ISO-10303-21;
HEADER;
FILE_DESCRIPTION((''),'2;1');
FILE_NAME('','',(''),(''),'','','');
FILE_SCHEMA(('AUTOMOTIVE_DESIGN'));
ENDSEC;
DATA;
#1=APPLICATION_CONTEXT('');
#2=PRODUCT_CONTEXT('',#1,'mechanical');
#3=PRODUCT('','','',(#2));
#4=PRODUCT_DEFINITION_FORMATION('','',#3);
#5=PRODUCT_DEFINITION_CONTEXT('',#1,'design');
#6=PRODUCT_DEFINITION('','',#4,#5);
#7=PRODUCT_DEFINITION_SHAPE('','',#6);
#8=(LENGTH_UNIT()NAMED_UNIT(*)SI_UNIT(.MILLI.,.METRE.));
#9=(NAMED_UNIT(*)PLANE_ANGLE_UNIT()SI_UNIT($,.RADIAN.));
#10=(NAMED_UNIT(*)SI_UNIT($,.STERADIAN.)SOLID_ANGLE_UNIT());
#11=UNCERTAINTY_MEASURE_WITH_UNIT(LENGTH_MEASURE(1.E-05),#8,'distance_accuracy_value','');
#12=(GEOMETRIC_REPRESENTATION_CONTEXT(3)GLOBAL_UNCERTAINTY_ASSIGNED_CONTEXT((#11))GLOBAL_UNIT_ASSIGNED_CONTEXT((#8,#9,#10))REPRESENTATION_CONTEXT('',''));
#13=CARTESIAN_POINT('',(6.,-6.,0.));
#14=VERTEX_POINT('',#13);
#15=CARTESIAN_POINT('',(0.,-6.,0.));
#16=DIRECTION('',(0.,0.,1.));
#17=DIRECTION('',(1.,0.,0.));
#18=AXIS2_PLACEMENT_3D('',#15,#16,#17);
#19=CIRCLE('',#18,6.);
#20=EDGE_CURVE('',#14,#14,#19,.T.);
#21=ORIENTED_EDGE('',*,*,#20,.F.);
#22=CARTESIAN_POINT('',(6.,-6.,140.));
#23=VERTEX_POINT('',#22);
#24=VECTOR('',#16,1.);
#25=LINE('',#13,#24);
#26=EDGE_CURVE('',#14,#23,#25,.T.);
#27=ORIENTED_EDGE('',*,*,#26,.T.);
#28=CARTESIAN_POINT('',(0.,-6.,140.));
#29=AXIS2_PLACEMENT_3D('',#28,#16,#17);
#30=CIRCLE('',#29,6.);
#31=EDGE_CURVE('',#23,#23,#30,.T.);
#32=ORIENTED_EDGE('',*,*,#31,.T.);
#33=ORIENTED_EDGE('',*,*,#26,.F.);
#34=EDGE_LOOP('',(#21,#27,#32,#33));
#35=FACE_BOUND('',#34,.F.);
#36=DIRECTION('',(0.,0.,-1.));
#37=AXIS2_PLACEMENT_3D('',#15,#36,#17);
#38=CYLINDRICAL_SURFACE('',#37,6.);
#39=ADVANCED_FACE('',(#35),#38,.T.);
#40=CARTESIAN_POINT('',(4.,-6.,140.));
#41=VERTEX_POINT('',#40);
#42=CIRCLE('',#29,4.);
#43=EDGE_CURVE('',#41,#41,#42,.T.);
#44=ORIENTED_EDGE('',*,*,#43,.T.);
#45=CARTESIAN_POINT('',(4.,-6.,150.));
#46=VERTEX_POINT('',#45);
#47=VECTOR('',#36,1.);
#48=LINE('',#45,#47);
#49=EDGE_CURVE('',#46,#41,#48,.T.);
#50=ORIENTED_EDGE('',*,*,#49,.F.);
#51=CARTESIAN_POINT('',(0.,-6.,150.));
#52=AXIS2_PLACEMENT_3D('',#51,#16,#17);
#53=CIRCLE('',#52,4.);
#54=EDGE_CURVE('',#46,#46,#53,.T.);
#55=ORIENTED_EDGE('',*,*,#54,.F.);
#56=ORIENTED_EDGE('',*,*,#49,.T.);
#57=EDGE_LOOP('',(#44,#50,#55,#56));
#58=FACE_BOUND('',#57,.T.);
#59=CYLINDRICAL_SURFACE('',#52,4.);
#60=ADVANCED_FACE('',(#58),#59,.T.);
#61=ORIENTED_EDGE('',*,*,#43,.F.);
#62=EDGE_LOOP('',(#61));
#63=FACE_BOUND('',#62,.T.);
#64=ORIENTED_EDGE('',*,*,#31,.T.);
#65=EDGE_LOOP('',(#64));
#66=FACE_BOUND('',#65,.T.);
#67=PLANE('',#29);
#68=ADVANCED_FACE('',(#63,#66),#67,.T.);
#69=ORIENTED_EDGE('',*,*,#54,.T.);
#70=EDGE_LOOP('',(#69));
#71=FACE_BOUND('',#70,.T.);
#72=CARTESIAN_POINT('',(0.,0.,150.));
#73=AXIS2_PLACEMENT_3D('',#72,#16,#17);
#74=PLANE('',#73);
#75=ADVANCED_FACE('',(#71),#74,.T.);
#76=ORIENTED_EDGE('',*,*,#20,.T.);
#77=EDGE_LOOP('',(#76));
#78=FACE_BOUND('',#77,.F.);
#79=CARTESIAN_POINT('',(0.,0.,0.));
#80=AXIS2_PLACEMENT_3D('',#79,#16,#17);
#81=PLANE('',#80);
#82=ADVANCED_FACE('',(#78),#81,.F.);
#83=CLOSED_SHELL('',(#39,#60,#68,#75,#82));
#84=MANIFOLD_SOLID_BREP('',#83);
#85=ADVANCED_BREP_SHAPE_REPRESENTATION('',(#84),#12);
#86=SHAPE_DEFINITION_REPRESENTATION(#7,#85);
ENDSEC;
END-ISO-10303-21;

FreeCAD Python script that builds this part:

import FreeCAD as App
import Part
import Sketcher

V = App.Vector
Q = App.Units.Quantity

doc = App.newDocument("Part")
body = doc.addObject("PartDesign::Body", "Body")

sketch1 = body.newObject("Sketcher::SketchObject", "Sketch")
sketch1.AttachmentSupport = (doc.getObject("XY_Plane"), [""])
sketch1.MapMode = "FlatFace"
sketch1.addGeometry(Part.Circle(V(0, -6, 0), V(0, 0, 1), 6), False)
sketch1.addConstraint([
    Sketcher.Constraint("PointOnObject", 0, 3, -2),
    Sketcher.Constraint("Diameter", 0, Q("12 mm")),
    Sketcher.Constraint("DistanceY", 0, 3, -1, 1, Q("6 mm")),
])
pad1 = body.newObject("PartDesign::Pad", "Pad")
pad1.Profile = sketch1
pad1.Length = 150

sketch2 = body.newObject("Sketcher::SketchObject", "Sketch001")
sketch2.AttachmentSupport = (doc.getObject("XY_Plane"), [""])
sketch2.MapMode = "FlatFace"
sketch2.AttachmentOffset = App.Placement(V(0, 0, 150), App.Rotation())
sketch2.addGeometry([
    Part.Circle(V(0, -6, 0), V(0, 0, 1), 6),
    Part.Circle(V(0, -6, 0), V(0, 0, 1), 4),
], False)
sketch2.addConstraint([
    Sketcher.Constraint("Coincident", 1, 3, 0, 3),
    Sketcher.Constraint("PointOnObject", 0, 3, -2),
    Sketcher.Constraint("Diameter", 1, Q("8 mm")),
    Sketcher.Constraint("Diameter", 0, Q("12 mm")),
    Sketcher.Constraint("DistanceY", 0, 3, -1, 1, Q("6 mm")),
])
pocket1 = body.newObject("PartDesign::Pocket", "Pocket")
pocket1.Profile = sketch2
pocket1.Length = 10

doc.recompute()
